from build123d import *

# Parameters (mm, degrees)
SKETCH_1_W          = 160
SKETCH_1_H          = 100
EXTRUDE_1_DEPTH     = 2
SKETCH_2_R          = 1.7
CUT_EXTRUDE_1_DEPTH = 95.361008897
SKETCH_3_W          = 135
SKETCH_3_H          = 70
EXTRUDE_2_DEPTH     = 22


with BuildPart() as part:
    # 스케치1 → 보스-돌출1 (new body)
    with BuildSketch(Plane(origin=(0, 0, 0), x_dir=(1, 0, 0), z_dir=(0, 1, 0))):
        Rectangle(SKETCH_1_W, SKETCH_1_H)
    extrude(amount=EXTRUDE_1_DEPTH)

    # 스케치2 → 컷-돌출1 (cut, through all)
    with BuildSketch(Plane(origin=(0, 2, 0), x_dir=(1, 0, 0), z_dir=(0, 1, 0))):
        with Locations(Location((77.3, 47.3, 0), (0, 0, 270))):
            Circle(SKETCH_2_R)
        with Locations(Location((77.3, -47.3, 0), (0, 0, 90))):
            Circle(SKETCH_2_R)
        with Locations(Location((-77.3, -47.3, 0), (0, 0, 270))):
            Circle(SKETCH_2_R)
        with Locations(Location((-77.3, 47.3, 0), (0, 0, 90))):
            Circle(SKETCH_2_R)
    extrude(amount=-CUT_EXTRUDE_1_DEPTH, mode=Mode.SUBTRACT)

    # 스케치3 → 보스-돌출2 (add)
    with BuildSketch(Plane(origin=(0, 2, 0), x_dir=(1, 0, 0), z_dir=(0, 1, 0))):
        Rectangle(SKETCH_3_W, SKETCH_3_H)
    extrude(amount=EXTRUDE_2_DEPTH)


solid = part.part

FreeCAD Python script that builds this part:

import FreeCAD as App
import Part
import Sketcher
from FreeCAD import Vector


def add_polygon(sketch, points):
    """Adds a closed chain of lines whose ends are joined by coincident constraints."""
    first, n = sketch.GeometryCount, len(points)
    for a, b in zip(points, points[1:] + points[:1]):
        sketch.addGeometry(Part.LineSegment(App.Vector(*a, 0), App.Vector(*b, 0)), False)
    for i in range(n):
        sketch.addConstraint(Sketcher.Constraint("Coincident", first + i, 2, first + (i + 1) % n, 1))

doc = App.newDocument("Part")
params = doc.addObject("Spreadsheet::Sheet", "Params")
for row, (alias, value) in enumerate([
    ("sketch1_width", "160 mm"),
    ("sketch1_height", "100 mm"),
    ("pad1_length", "2 mm"),
    ("sketch2_diameter", "3.4 mm"),
    ("sketch3_width", "135 mm"),
    ("sketch3_height", "70 mm"),
    ("pad2_length", "22 mm"),
], start=1):
    params.set(f"A{row}", alias)
    params.set(f"B{row}", "=" + value)
    params.setAlias(f"B{row}", alias)

body = doc.addObject("PartDesign::Body", "Body")

sketch1 = doc.addObject("Sketcher::SketchObject", "Sketch")
body.addObject(sketch1)
sketch1.AttachmentSupport = (doc.XZ_Plane, [""])
sketch1.MapMode = "FlatFace"
add_polygon(sketch1, [(-80, -50), (-80, 50), (80, 50), (80, -50)])
sketch1.addConstraint([
    Sketcher.Constraint("Vertical", 0),
    Sketcher.Constraint("Horizontal", 1),
    Sketcher.Constraint("Vertical", 2),
    Sketcher.Constraint("Horizontal", 3),
    Sketcher.Constraint("Symmetric", 0, 2, 2, 2, -1, 1),
    Sketcher.Constraint("DistanceX", 1, 1, 1, 2, 160.0),
    Sketcher.Constraint("DistanceY", 0, 1, 0, 2, 100.0),
])
sketch1.setExpression("Constraints[9]", "Params.sketch1_width")
sketch1.setExpression("Constraints[10]", "Params.sketch1_height")
pad1 = doc.addObject("PartDesign::Pad", "Pad")
body.addObject(pad1)
pad1.Profile = sketch1
pad1.setExpression("Length", "Params.pad1_length")
pad1.Reversed = True

sketch2 = doc.addObject("Sketcher::SketchObject", "Sketch001")
body.addObject(sketch2)
sketch2.AttachmentSupport = (doc.XZ_Plane, [""])
sketch2.MapMode = "FlatFace"
sketch2.AttachmentOffset = App.Placement(Vector(0, 0, -2), App.Rotation())
sketch2.addGeometry([
    Part.Circle(Vector(77.3, -47.3, 0), Vector(0, 0, 1), 1.7),
    Part.Circle(Vector(77.3, 47.3, 0), Vector(0, 0, 1), 1.7),
    Part.Circle(Vector(-77.3, 47.3, 0), Vector(0, 0, 1), 1.7),
    Part.Circle(Vector(-77.3, -47.3, 0), Vector(0, 0, 1), 1.7),
], False)
sketch2.addConstraint([
    Sketcher.Constraint("Equal", 0, 1),
    Sketcher.Constraint("Equal", 1, 2),
    Sketcher.Constraint("Equal", 2, 3),
    Sketcher.Constraint("Symmetric", 0, 3, 2, 3, -1, 1),
    Sketcher.Constraint("Symmetric", 1, 3, 3, 3, -1, 1),
    Sketcher.Constraint("Symmetric", 1, 3, 2, 3, -2),
    Sketcher.Constraint("Diameter", 0, 3.4),
    Sketcher.Constraint("DistanceX", -1, 1, 0, 3, 77.3),
    Sketcher.Constraint("DistanceY", 0, 3, -1, 1, 47.3),
])
sketch2.setExpression("Constraints[6]", "Params.sketch2_diameter")
pocket1 = doc.addObject("PartDesign::Pocket", "Pocket")
body.addObject(pocket1)
pocket1.Profile = sketch2
pocket1.Type = "ThroughAll"
pocket1.Reversed = True

sketch3 = doc.addObject("Sketcher::SketchObject", "Sketch002")
body.addObject(sketch3)
sketch3.AttachmentSupport = (doc.XZ_Plane, [""])
sketch3.MapMode = "FlatFace"
sketch3.AttachmentOffset = App.Placement(Vector(0, 0, -2), App.Rotation())
add_polygon(sketch3, [(-68, -35), (-68, 35), (68, 35), (68, -35)])
sketch3.addConstraint([
    Sketcher.Constraint("Vertical", 0),
    Sketcher.Constraint("Horizontal", 1),
    Sketcher.Constraint("Vertical", 2),
    Sketcher.Constraint("Horizontal", 3),
    Sketcher.Constraint("Symmetric", 0, 2, 2, 2, -1, 1),
    Sketcher.Constraint("DistanceX", 1, 1, 1, 2, 135.0),
    Sketcher.Constraint("DistanceY", 0, 1, 0, 2, 70.0),
])
sketch3.setExpression("Constraints[9]", "Params.sketch3_width")
sketch3.setExpression("Constraints[10]", "Params.sketch3_height")
pad2 = doc.addObject("PartDesign::Pad", "Pad001")
body.addObject(pad2)
pad2.Profile = sketch3
pad2.setExpression("Length", "Params.pad2_length")
pad2.Reversed = True

doc.recompute()
